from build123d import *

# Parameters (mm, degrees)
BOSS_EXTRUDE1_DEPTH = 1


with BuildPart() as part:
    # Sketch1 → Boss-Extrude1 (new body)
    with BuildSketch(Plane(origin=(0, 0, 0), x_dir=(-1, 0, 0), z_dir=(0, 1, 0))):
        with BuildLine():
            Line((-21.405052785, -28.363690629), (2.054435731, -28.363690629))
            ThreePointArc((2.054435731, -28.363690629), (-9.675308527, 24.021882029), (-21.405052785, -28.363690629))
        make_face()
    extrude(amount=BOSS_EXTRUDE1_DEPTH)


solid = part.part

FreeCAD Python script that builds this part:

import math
import FreeCAD as App
import Part
import Sketcher
Q = App.Units.Quantity

doc = App.newDocument("Part")
body = doc.addObject("PartDesign::Body", "Body")

# Sketch on XZ plane
sketch1 = body.newObject("Sketcher::SketchObject", "Sketch")
sketch1.AttachmentSupport = (doc.getObject("XZ_Plane"), [""])
sketch1.MapMode = "FlatFace"
sketch1.addGeometry([
    Part.LineSegment(App.Vector(21, -28, 0), App.Vector(-2, -28, 0)),
    Part.ArcOfCircle(Part.Circle(App.Vector(10, -3, 0), App.Vector(0, 0, 1), 28), math.radians(-65), math.radians(245)),
], False)
sketch1.addConstraint([
    Sketcher.Constraint("Coincident", 0, 1, 1, 1),
    Sketcher.Constraint("Coincident", 1, 2, 0, 2),
    Sketcher.Constraint("Horizontal", 0),
    Sketcher.Constraint("Radius", 1, Q("27.506 mm")),
    Sketcher.Constraint("DistanceX", 0, 2, 0, 1, Q("23.459489 mm")),
    Sketcher.Constraint("DistanceX", -1, 1, 1, 3, Q("9.675309 mm")),
    Sketcher.Constraint("DistanceY", 0, 1, -1, 1, Q("28.363691 mm")),
])
pad1 = body.newObject("PartDesign::Pad", "Pad")
pad1.Profile = sketch1
pad1.Length = 1
pad1.Reversed = True

doc.recompute()
